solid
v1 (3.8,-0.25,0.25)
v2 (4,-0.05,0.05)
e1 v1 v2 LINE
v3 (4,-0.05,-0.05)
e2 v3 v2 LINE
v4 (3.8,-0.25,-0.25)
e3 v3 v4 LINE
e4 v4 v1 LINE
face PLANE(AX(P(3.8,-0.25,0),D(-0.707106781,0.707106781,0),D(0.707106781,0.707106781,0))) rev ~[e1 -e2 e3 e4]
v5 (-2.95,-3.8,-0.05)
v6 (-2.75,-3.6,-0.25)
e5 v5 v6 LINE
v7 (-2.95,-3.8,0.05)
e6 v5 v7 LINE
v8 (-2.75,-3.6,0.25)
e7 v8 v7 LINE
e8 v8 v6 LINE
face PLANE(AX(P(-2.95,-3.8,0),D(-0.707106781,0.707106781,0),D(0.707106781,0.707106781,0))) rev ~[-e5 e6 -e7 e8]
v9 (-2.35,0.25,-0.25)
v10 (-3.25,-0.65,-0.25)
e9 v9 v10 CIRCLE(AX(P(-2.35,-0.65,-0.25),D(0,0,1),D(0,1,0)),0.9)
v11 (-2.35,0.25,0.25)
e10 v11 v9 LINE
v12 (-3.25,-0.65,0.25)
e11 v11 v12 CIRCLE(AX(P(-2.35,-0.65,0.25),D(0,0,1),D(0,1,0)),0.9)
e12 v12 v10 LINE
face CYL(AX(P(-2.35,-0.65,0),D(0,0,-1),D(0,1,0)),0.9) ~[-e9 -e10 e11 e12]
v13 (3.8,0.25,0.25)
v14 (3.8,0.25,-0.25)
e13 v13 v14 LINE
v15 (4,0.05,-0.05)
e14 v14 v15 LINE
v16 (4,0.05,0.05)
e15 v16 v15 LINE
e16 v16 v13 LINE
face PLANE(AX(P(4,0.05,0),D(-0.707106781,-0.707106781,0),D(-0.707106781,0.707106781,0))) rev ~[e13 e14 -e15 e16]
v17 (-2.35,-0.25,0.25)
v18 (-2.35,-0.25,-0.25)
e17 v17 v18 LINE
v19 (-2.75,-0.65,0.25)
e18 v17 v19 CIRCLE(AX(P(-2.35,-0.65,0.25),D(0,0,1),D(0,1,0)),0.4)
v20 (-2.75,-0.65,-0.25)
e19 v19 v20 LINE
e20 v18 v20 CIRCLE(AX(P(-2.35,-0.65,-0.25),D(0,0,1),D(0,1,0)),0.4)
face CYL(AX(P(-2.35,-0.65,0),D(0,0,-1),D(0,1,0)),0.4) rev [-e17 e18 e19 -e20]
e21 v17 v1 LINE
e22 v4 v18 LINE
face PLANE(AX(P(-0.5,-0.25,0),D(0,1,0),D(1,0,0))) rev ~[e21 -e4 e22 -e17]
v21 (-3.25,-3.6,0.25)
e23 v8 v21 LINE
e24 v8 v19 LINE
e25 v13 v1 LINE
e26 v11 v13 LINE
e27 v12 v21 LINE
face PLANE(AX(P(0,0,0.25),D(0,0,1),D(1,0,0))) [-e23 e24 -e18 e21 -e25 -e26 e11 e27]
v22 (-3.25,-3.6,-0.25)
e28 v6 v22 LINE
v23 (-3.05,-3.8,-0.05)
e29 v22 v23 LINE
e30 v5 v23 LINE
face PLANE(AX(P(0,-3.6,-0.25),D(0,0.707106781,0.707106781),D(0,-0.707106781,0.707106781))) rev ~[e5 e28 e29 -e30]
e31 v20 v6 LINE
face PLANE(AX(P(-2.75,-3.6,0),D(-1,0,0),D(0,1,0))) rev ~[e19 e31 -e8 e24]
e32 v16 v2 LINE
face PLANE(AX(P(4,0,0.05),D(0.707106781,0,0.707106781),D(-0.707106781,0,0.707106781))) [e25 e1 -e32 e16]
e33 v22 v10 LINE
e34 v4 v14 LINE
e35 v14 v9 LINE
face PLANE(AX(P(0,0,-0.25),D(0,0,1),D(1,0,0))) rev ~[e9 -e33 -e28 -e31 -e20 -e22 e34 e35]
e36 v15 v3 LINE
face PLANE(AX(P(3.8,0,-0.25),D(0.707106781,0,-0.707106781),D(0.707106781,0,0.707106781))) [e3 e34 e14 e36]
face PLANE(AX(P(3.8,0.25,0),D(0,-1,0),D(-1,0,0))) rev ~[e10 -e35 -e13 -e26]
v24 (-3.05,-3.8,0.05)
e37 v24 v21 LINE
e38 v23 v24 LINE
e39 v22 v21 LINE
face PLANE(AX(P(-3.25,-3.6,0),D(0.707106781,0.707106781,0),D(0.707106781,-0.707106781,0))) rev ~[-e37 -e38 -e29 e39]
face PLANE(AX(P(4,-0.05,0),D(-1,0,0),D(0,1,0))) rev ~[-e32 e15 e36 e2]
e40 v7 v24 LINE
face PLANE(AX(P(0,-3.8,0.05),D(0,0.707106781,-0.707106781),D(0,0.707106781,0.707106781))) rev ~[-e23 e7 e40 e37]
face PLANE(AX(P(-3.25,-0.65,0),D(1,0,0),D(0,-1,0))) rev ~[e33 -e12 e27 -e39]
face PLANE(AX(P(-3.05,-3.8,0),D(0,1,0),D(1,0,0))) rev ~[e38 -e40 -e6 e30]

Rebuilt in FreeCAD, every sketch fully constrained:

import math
import FreeCAD as App
import Part
import Sketcher
Q = App.Units.Quantity

doc = App.newDocument("Part")
body = doc.addObject("PartDesign::Body", "Body")

sketch1 = body.newObject("Sketcher::SketchObject", "Sketch")
sketch1.AttachmentSupport = (doc.getObject("XY_Plane"), [""])
sketch1.MapMode = "FlatFace"
sketch1.addGeometry([
    Part.LineSegment(App.Vector(-0.5, 0.25, 0), App.Vector(-0.5, -0.25, 0)),
    Part.LineSegment(App.Vector(-0.5, -0.25, 0), App.Vector(3.8, -0.25, 0)),
    Part.LineSegment(App.Vector(3.8, -0.25, 0), App.Vector(4, -0.05, 0)),
    Part.LineSegment(App.Vector(4, -0.05, 0), App.Vector(4, 0.05, 0)),
    Part.LineSegment(App.Vector(4, 0.05, 0), App.Vector(3.8, 0.25, 0)),
    Part.LineSegment(App.Vector(3.8, 0.25, 0), App.Vector(-0.5, 0.25, 0)),
], False)
sketch1.addConstraint([
    Sketcher.Constraint("Coincident", 0, 2, 1, 1),
    Sketcher.Constraint("Coincident", 1, 2, 2, 1),
    Sketcher.Constraint("Coincident", 2, 2, 3, 1),
    Sketcher.Constraint("Coincident", 3, 2, 4, 1),
    Sketcher.Constraint("Coincident", 4, 2, 5, 1),
    Sketcher.Constraint("Coincident", 5, 2, 0, 1),
    Sketcher.Constraint("Vertical", 0),
    Sketcher.Constraint("Horizontal", 1),
    Sketcher.Constraint("Vertical", 3),
    Sketcher.Constraint("Horizontal", 5),
    Sketcher.Constraint("Symmetric", 1, 2, 4, 2, -1),
    Sketcher.Constraint("Perpendicular", 2, 4),
    Sketcher.Constraint("Equal", 2, 4),
    Sketcher.Constraint("DistanceX", 1, 1, 1, 2, Q("4.3 mm")),
    Sketcher.Constraint("DistanceY", 0, 2, 0, 1, Q("0.5 mm")),
    Sketcher.Constraint("DistanceY", 3, 1, 3, 2, Q("0.1 mm")),
    Sketcher.Constraint("DistanceX", -1, 1, 2, 2, Q("4 mm")),
])
pad1 = body.newObject("PartDesign::Pad", "Pad")
pad1.Profile = sketch1
pad1.Length = 0.5
pad1.Midplane = True

sketch2 = body.newObject("Sketcher::SketchObject", "Sketch001")
sketch2.AttachmentSupport = (doc.getObject("XY_Plane"), [""])
sketch2.MapMode = "FlatFace"
sketch2.addGeometry([
    Part.LineSegment(App.Vector(-3.25, -0.65, 0), App.Vector(-3.25, -3.6, 0)),
    Part.LineSegment(App.Vector(-3.25, -3.6, 0), App.Vector(-3.05, -3.8, 0)),
    Part.LineSegment(App.Vector(-3.05, -3.8, 0), App.Vector(-2.95, -3.8, 0)),
    Part.LineSegment(App.Vector(-2.95, -3.8, 0), App.Vector(-2.75, -3.6, 0)),
    Part.LineSegment(App.Vector(-2.75, -3.6, 0), App.Vector(-2.75, -0.65, 0)),
    Part.ArcOfCircle(Part.Circle(App.Vector(-2.35, -0.65, 0), App.Vector(0, 0, 1), 0.4), math.radians(90), math.radians(180)),
    Part.LineSegment(App.Vector(-2.35, -0.25, 0), App.Vector(-0.5, -0.25, 0)),
    Part.LineSegment(App.Vector(-0.5, -0.25, 0), App.Vector(-0.5, 0.25, 0)),
    Part.LineSegment(App.Vector(-0.5, 0.25, 0), App.Vector(-2.35, 0.25, 0)),
    Part.ArcOfCircle(Part.Circle(App.Vector(-2.35, -0.65, 0), App.Vector(0, 0, 1), 0.9), math.radians(90), math.radians(180)),
], False)
sketch2.addConstraint([
    Sketcher.Constraint("Coincident", 0, 2, 1, 1),
    Sketcher.Constraint("Coincident", 1, 2, 2, 1),
    Sketcher.Constraint("Coincident", 2, 2, 3, 1),
    Sketcher.Constraint("Coincident", 3, 2, 4, 1),
    Sketcher.Constraint("Tangent", 4, 2, 5, 2),
    Sketcher.Constraint("Tangent", 5, 1, 6, 1),
    Sketcher.Constraint("Coincident", 6, 2, 7, 1),
    Sketcher.Constraint("Coincident", 7, 2, 8, 1),
    Sketcher.Constraint("Tangent", 8, 2, 9, 1),
    Sketcher.Constraint("Tangent", 9, 2, 0, 1),
    Sketcher.Constraint("Vertical", 0),
    Sketcher.Constraint("Horizontal", 2),
    Sketcher.Constraint("Vertical", 4),
    Sketcher.Constraint("Horizontal", 6),
    Sketcher.Constraint("Vertical", 7),
    Sketcher.Constraint("Horizontal", 8),
    Sketcher.Constraint("Coincident", 9, 3, 5, 3),
    Sketcher.Constraint("Perpendicular", 1, 3),
    Sketcher.Constraint("Horizontal", 0, 2, 3, 2),
    Sketcher.Constraint("Equal", 1, 3),
    Sketcher.Constraint("Radius", 5, Q("0.4 mm")),
    Sketcher.Constraint("Radius", 9, Q("0.9 mm")),
    Sketcher.Constraint("DistanceX", 2, 1, 2, 2, Q("0.1 mm")),
    Sketcher.Constraint("DistanceX", 6, 1, 6, 2, Q("1.85 mm")),
    Sketcher.Constraint("DistanceY", 0, 2, 0, 1, Q("2.95 mm")),
    Sketcher.Constraint("DistanceY", 0, 2, -1, 1, Q("3.6 mm")),
    Sketcher.Constraint("DistanceX", 6, 2, -1, 1, Q("0.5 mm")),
])
pad2 = body.newObject("PartDesign::Pad", "Pad001")
pad2.Profile = sketch2
pad2.Length = 0.5
pad2.Midplane = True

sketch3 = body.newObject("Sketcher::SketchObject", "Sketch002")
sketch3.AttachmentSupport = (doc.getObject("XZ_Plane"), [""])
sketch3.MapMode = "FlatFace"
sketch3.addGeometry([
    Part.LineSegment(App.Vector(5, -1.25, 0), App.Vector(3.7, -1.25, 0)),
    Part.LineSegment(App.Vector(3.7, -1.25, 0), App.Vector(3.7, -0.25, 0)),
    Part.LineSegment(App.Vector(3.7, -0.25, 0), App.Vector(3.8, -0.25, 0)),
    Part.LineSegment(App.Vector(3.8, -0.25, 0), App.Vector(4, -0.05, 0)),
    Part.LineSegment(App.Vector(4, -0.05, 0), App.Vector(4, 0.05, 0)),
    Part.LineSegment(App.Vector(4, 0.05, 0), App.Vector(3.8, 0.25, 0)),
    Part.LineSegment(App.Vector(3.8, 0.25, 0), App.Vector(3.7, 0.25, 0)),
    Part.LineSegment(App.Vector(3.7, 0.25, 0), App.Vector(3.7, 1.25, 0)),
    Part.LineSegment(App.Vector(3.7, 1.25, 0), App.Vector(5, 1.25, 0)),
    Part.LineSegment(App.Vector(5, 1.25, 0), App.Vector(5, -1.25, 0)),
], False)
sketch3.addConstraint([
    Sketcher.Constraint("Coincident", 0, 2, 1, 1),
    Sketcher.Constraint("Coincident", 1, 2, 2, 1),
    Sketcher.Constraint("Coincident", 2, 2, 3, 1),
    Sketcher.Constraint("Coincident", 3, 2, 4, 1),
    Sketcher.Constraint("Coincident", 4, 2, 5, 1),
    Sketcher.Constraint("Coincident", 5, 2, 6, 1),
    Sketcher.Constraint("Coincident", 6, 2, 7, 1),
    Sketcher.Constraint("Coincident", 7, 2, 8, 1),
    Sketcher.Constraint("Coincident", 8, 2, 9, 1),
    Sketcher.Constraint("Coincident", 9, 2, 0, 1),
    Sketcher.Constraint("Horizontal", 0),
    Sketcher.Constraint("Vertical", 1),
    Sketcher.Constraint("Horizontal", 2),
    Sketcher.Constraint("Vertical", 4),
    Sketcher.Constraint("Horizontal", 6),
    Sketcher.Constraint("Vertical", 7),
    Sketcher.Constraint("Horizontal", 8),
    Sketcher.Constraint("Vertical", 9),
    Sketcher.Constraint("Symmetric", 2, 2, 5, 2, -1),
    Sketcher.Constraint("Symmetric", 0, 2, 7, 2, -1),
    Sketcher.Constraint("Perpendicular", 3, 5),
    Sketcher.Constraint("Equal", 6, 4),
    Sketcher.Constraint("Equal", 3, 5),
    Sketcher.Constraint("DistanceY", 1, 1, 1, 2, Q("1 mm")),
    Sketcher.Constraint("DistanceX", 0, 2, 0, 1, Q("1.3 mm")),
    Sketcher.Constraint("DistanceX", 2, 1, 2, 2, Q("0.1 mm")),
    Sketcher.Constraint("DistanceY", 9, 2, 9, 1, Q("2.5 mm")),
    Sketcher.Constraint("DistanceX", -1, 1, 3, 2, Q("4 mm")),
])
pocket1 = body.newObject("PartDesign::Pocket", "Pocket")
pocket1.Profile = sketch3
pocket1.Length = 0.5
pocket1.Midplane = True

sketch4 = body.newObject("Sketcher::SketchObject", "Sketch003")
sketch4.AttachmentSupport = (doc.getObject("YZ_Plane"), [""])
sketch4.MapMode = "FlatFace"
sketch4.addGeometry([
    Part.LineSegment(App.Vector(-3.5, 0.45, 0), App.Vector(-4, 0.45, 0)),
    Part.LineSegment(App.Vector(-4, 0.45, 0), App.Vector(-4, -0.45, 0)),
    Part.LineSegment(App.Vector(-4, -0.45, 0), App.Vector(-3.5, -0.45, 0)),
    Part.LineSegment(App.Vector(-3.5, -0.45, 0), App.Vector(-3.5, -0.25, 0)),
    Part.LineSegment(App.Vector(-3.5, -0.25, 0), App.Vector(-3.6, -0.25, 0)),
    Part.LineSegment(App.Vector(-3.6, -0.25, 0), App.Vector(-3.8, -0.05, 0)),
    Part.LineSegment(App.Vector(-3.8, -0.05, 0), App.Vector(-3.8, 0.05, 0)),
    Part.LineSegment(App.Vector(-3.8, 0.05, 0), App.Vector(-3.6, 0.25, 0)),
    Part.LineSegment(App.Vector(-3.6, 0.25, 0), App.Vector(-3.5, 0.25, 0)),
    Part.LineSegment(App.Vector(-3.5, 0.25, 0), App.Vector(-3.5, 0.45, 0)),
], False)
sketch4.addConstraint([
    Sketcher.Constraint("Coincident", 0, 2, 1, 1),
    Sketcher.Constraint("Coincident", 1, 2, 2, 1),
    Sketcher.Constraint("Coincident", 2, 2, 3, 1),
    Sketcher.Constraint("Coincident", 3, 2, 4, 1),
    Sketcher.Constraint("Coincident", 4, 2, 5, 1),
    Sketcher.Constraint("Coincident", 5, 2, 6, 1),
    Sketcher.Constraint("Coincident", 6, 2, 7, 1),
    Sketcher.Constraint("Coincident", 7, 2, 8, 1),
    Sketcher.Constraint("Coincident", 8, 2, 9, 1),
    Sketcher.Constraint("Coincident", 9, 2, 0, 1),
    Sketcher.Constraint("Horizontal", 0),
    Sketcher.Constraint("Vertical", 1),
    Sketcher.Constraint("Horizontal", 2),
    Sketcher.Constraint("Vertical", 3),
    Sketcher.Constraint("Horizontal", 4),
    Sketcher.Constraint("Vertical", 6),
    Sketcher.Constraint("Horizontal", 8),
    Sketcher.Constraint("Vertical", 9),
    Sketcher.Constraint("Symmetric", 4, 2, 7, 2, -1),
    Sketcher.Constraint("Symmetric", 2, 2, 9, 2, -1),
    Sketcher.Constraint("Perpendicular", 5, 7),
    Sketcher.Constraint("Equal", 8, 6),
    Sketcher.Constraint("Equal", 5, 7),
    Sketcher.Constraint("DistanceX", 0, 2, 0, 1, Q("0.5 mm")),
    Sketcher.Constraint("DistanceX", 4, 2, 4, 1, Q("0.1 mm")),
    Sketcher.Constraint("DistanceY", 1, 2, 1, 1, Q("0.9 mm")),
    Sketcher.Constraint("DistanceY", 3, 1, 3, 2, Q("0.2 mm")),
    Sketcher.Constraint("DistanceX", 0, 2, -1, 1, Q("4 mm")),
])
pocket2 = body.newObject("PartDesign::Pocket", "Pocket001")
pocket2.Profile = sketch4
pocket2.Length = 3.5

doc.recompute()
